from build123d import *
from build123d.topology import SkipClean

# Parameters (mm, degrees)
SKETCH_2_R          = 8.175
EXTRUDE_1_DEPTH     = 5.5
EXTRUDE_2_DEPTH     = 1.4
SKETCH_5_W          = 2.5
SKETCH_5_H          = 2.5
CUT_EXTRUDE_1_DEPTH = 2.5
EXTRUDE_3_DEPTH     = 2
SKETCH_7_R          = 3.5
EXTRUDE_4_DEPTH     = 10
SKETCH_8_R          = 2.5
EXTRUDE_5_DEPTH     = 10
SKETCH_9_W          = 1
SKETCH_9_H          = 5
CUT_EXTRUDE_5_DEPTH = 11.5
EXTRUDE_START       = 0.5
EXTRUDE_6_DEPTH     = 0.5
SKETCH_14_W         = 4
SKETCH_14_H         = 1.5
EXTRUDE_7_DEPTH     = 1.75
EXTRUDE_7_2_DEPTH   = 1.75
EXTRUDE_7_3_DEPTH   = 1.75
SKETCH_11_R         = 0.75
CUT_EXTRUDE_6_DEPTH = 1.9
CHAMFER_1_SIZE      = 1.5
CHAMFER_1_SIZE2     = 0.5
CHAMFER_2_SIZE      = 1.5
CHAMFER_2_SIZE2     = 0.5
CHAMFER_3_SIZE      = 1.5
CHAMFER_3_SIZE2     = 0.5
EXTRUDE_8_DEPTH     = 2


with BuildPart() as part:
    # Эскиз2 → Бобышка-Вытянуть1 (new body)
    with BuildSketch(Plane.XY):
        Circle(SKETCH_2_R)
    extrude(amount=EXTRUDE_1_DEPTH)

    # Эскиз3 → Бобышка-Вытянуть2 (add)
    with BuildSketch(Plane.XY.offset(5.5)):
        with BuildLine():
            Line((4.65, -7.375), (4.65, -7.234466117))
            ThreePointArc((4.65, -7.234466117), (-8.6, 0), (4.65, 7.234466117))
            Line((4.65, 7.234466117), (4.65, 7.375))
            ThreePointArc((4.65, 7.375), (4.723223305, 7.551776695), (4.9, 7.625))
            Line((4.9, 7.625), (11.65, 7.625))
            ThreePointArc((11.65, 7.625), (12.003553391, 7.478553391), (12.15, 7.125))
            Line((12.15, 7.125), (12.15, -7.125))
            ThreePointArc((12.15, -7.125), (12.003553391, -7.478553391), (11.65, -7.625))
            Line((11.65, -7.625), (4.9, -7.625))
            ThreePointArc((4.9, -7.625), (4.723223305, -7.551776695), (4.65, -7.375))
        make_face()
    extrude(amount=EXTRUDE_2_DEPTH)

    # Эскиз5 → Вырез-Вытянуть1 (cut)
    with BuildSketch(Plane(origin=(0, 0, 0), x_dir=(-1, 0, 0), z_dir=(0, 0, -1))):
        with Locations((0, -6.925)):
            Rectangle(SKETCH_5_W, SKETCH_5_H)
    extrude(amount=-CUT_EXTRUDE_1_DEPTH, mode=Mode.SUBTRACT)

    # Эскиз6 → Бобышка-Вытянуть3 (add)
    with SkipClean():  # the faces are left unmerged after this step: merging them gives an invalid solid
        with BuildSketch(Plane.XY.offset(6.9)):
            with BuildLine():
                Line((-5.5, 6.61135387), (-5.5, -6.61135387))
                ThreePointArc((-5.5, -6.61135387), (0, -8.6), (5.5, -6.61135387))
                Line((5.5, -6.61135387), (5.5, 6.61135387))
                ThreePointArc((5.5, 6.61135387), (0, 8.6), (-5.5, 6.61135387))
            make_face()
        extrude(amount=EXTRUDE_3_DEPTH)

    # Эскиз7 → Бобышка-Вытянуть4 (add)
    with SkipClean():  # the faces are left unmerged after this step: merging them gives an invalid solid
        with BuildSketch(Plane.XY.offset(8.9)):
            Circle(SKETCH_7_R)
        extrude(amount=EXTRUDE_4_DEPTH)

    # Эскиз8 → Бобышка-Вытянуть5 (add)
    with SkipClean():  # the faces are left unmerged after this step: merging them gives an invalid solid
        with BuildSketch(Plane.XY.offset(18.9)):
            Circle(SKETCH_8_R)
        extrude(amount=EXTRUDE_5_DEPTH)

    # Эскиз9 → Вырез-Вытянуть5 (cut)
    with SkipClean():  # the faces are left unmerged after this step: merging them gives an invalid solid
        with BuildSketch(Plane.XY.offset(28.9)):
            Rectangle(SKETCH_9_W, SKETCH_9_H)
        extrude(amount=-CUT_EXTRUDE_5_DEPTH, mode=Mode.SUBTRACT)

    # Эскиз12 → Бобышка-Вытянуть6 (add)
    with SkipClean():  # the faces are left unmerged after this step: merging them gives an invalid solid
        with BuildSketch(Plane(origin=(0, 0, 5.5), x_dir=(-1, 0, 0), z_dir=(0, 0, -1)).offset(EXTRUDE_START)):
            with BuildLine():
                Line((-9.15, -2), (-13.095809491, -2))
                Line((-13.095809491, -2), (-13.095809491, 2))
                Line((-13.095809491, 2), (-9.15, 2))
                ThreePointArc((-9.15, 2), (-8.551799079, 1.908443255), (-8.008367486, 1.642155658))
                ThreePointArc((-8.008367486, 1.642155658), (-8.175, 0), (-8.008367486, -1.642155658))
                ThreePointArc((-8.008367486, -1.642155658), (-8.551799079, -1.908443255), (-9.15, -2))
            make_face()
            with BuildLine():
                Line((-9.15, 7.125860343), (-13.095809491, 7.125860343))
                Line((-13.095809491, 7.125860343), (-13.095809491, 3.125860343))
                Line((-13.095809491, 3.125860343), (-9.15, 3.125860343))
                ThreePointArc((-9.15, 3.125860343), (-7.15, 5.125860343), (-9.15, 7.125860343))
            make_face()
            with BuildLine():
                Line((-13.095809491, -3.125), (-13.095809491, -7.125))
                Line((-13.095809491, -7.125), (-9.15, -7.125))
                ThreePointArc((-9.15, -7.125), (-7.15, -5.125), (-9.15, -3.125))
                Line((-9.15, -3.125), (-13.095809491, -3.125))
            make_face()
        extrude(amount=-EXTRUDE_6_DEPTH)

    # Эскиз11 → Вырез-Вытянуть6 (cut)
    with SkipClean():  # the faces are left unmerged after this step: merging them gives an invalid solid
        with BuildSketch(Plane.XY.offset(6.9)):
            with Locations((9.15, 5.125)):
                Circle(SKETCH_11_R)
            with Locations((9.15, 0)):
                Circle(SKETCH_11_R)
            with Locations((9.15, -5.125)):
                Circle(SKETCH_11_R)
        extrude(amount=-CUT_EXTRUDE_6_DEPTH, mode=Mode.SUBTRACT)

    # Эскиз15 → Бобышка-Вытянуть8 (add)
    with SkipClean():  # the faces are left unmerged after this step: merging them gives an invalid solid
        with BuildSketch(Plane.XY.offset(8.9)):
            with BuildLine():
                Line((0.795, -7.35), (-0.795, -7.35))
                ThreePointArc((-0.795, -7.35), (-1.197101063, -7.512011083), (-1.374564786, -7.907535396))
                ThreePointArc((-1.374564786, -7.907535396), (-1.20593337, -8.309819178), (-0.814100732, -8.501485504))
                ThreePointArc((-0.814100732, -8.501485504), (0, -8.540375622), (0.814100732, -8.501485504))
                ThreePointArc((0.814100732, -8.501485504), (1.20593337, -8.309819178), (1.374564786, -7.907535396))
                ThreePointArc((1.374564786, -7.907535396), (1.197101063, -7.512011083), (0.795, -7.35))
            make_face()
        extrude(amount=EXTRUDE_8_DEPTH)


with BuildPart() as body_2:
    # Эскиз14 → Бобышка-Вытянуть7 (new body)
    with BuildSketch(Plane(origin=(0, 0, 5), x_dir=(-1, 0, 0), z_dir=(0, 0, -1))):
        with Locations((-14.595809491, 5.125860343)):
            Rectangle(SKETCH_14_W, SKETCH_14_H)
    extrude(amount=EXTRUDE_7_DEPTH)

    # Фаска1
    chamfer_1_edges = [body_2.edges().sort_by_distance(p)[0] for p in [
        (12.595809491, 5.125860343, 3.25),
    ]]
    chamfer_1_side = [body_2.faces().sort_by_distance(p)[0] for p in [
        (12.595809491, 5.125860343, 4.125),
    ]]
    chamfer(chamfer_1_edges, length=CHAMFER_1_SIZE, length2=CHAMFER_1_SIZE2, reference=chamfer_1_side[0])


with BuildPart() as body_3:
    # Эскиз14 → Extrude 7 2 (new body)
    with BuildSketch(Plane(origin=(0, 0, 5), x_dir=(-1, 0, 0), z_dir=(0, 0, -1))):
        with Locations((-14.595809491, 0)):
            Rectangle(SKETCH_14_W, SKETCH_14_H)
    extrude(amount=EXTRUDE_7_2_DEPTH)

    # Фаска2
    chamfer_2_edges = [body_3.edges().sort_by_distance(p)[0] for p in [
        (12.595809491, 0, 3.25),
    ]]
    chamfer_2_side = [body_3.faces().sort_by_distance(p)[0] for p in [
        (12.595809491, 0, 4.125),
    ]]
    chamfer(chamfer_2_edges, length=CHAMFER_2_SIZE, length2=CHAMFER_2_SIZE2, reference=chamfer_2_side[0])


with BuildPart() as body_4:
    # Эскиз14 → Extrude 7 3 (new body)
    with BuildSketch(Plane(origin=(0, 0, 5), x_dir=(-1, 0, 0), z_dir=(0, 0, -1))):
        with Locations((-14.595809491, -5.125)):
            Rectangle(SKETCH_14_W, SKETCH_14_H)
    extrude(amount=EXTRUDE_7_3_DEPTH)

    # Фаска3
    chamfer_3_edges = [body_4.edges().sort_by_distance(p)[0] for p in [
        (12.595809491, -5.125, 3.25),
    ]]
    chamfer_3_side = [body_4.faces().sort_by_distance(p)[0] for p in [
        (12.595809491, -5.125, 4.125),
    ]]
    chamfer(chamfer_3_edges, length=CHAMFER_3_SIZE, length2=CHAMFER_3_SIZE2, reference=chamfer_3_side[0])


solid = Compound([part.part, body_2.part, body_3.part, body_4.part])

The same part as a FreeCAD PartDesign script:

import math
import FreeCAD as App
import Part
import Sketcher


def edges_at(feature, points):
    """Names of the edges that pass closest to the given points."""
    edges = feature.Shape.Edges
    near = lambda p: min(range(len(edges)), key=lambda i: edges[i].distToShape(Part.Vertex(*p))[0])
    return sorted({f"Edge{near(p) + 1}" for p in points})

doc = App.newDocument("Part")
params = doc.addObject("Spreadsheet::Sheet", "Params")
for row, (alias, value) in enumerate([
    ("sketch1_diameter", "16.35 mm"),
    ("pad1_length", "5.5 mm"),
    ("sketch2_radius", "0.5 mm"),
    ("sketch2_radius2", "8.6 mm"),
    ("sketch2_radius3", "0.25 mm"),
    ("pad2_length", "1.4 mm"),
    ("sketch3_width", "2.5 mm"),
    ("pocket1_length", "2.5 mm"),
    ("sketch4_radius", "8.6 mm"),
    ("pad3_length", "2 mm"),
    ("sketch5_diameter", "7 mm"),
    ("pad4_length", "10 mm"),
    ("sketch6_diameter", "5 mm"),
    ("pad5_length", "10 mm"),
    ("sketch7_width", "1 mm"),
    ("sketch7_height", "5 mm"),
    ("pocket2_length", "11.5 mm"),
    ("sketch8_radius", "2 mm"),
    ("pad6_length", "0.5 mm"),
    ("sketch9_diameter", "1.5 mm"),
    ("pocket3_length", "1.9 mm"),
    ("sketch10_radius", "0.58 mm"),
    ("sketch10_radius2", "0.62 mm"),
    ("sketch10_width", "1.59 mm"),
    ("pad7_length", "2 mm"),
    ("sketch11_width", "4 mm"),
    ("sketch11_height", "1.5 mm"),
    ("pad8_length", "1.75 mm"),
    ("chamfer_size", "1.5 mm"),
    ("chamfer_size2", "0.5 mm"),
    ("sketch12_width", "4 mm"),
    ("sketch12_height", "1.5 mm"),
    ("pad9_length", "1.75 mm"),
    ("chamfer2_size", "1.5 mm"),
    ("chamfer2_size2", "0.5 mm"),
    ("sketch13_width", "4 mm"),
    ("sketch13_height", "1.5 mm"),
    ("pad10_length", "1.75 mm"),
    ("chamfer3_size", "1.5 mm"),
    ("chamfer3_size2", "0.5 mm"),
], start=1):
    params.set(f"A{row}", alias)
    params.set(f"B{row}", "=" + value)
    params.setAlias(f"B{row}", alias)

body = doc.addObject("PartDesign::Body", "Body")

sketch1 = body.newObject("Sketcher::SketchObject", "Sketch")
sketch1.AttachmentSupport = (doc.getObject("XY_Plane"), [""])
sketch1.MapMode = "FlatFace"
sketch1.addGeometry(Part.Circle(App.Vector(0, 0, 0), App.Vector(0, 0, 1), 8), False)
sketch1.addConstraint([
    Sketcher.Constraint("Coincident", 0, 3, -1, 1),
    Sketcher.Constraint("Diameter", 0, 16.35),
])
sketch1.setExpression("Constraints[1]", "Params.sketch1_diameter")
pad1 = body.newObject("PartDesign::Pad", "Pad")
pad1.Profile = sketch1
pad1.setExpression("Length", "Params.pad1_length")

sketch2 = body.newObject("Sketcher::SketchObject", "Sketch001")
sketch2.AttachmentSupport = (doc.getObject("XY_Plane"), [""])
sketch2.MapMode = "FlatFace"
sketch2.AttachmentOffset = App.Placement(App.Vector(0, 0, 5.5), App.Rotation())
sketch2.addGeometry([
    Part.LineSegment(App.Vector(4.65, -7.23, 0), App.Vector(4.65, -7.38, 0)),
    Part.ArcOfCircle(Part.Circle(App.Vector(4.9, -7.37, 0), App.Vector(0, 0, 1), 0.25), math.radians(-180), math.radians(-90)),
    Part.LineSegment(App.Vector(4.9, -7.62, 0), App.Vector(11.65, -7.62, 0)),
    Part.ArcOfCircle(Part.Circle(App.Vector(11.65, -7.13, 0), App.Vector(0, 0, 1), 0.5), math.radians(-90), math.radians(0)),
    Part.LineSegment(App.Vector(12.15, -7.12, 0), App.Vector(12.15, 7.12, 0)),
    Part.ArcOfCircle(Part.Circle(App.Vector(11.65, 7.13, 0), App.Vector(0, 0, 1), 0.5), math.radians(0), math.radians(90)),
    Part.LineSegment(App.Vector(11.65, 7.62, 0), App.Vector(4.9, 7.62, 0)),
    Part.ArcOfCircle(Part.Circle(App.Vector(4.9, 7.37, 0), App.Vector(0, 0, 1), 0.25), math.radians(90), math.radians(180)),
    Part.LineSegment(App.Vector(4.65, 7.38, 0), App.Vector(4.65, 7.23, 0)),
    Part.ArcOfCircle(Part.Circle(App.Vector(0, 0, 0), App.Vector(0, 0, 1), 8.6), math.radians(57), math.radians(303)),
], False)
sketch2.addConstraint([
    Sketcher.Constraint("Tangent", 0, 2, 1, 1),
    Sketcher.Constraint("Tangent", 1, 2, 2, 1),
    Sketcher.Constraint("Tangent", 2, 2, 3, 1),
    Sketcher.Constraint("Tangent", 3, 2, 4, 1),
    Sketcher.Constraint("Tangent", 4, 2, 5, 1),
    Sketcher.Constraint("Tangent", 5, 2, 6, 1),
    Sketcher.Constraint("Tangent", 6, 2, 7, 1),
    Sketcher.Constraint("Tangent", 7, 2, 8, 1),
    Sketcher.Constraint("Coincident", 8, 2, 9, 1),
    Sketcher.Constraint("Coincident", 9, 2, 0, 1),
    Sketcher.Constraint("Vertical", 0),
    Sketcher.Constraint("Horizontal", 2),
    Sketcher.Constraint("Vertical", 4),
    Sketcher.Constraint("Horizontal", 6),
    Sketcher.Constraint("Vertical", 8),
    Sketcher.Constraint("Coincident", 9, 3, -1, 1),
    Sketcher.Constraint("Equal", 3, 5),
    Sketcher.Constraint("Equal", 1, 7),
    Sketcher.Constraint("Symmetric", 1, 3, 7, 3, -1),
    Sketcher.Constraint("Radius", 3, 0.5),
    Sketcher.Constraint("Radius", 9, 8.6),
    Sketcher.Constraint("Radius", 1, 0.25),
    Sketcher.Constraint("DistanceX", 0, 2, 3, 3, 7.0),
    Sketcher.Constraint("DistanceY", 1, 2, 7, 3, 15.0),
    Sketcher.Constraint("DistanceX", -1, 1, 1, 3, 4.9),
])
sketch2.setExpression("Constraints[19]", "Params.sketch2_radius")
sketch2.setExpression("Constraints[20]", "Params.sketch2_radius2")
sketch2.setExpression("Constraints[21]", "Params.sketch2_radius3")
pad2 = body.newObject("PartDesign::Pad", "Pad001")
pad2.Profile = sketch2
pad2.setExpression("Length", "Params.pad2_length")

sketch3 = body.newObject("Sketcher::SketchObject", "Sketch002")
sketch3.AttachmentSupport = (doc.getObject("XY_Plane"), [""])
sketch3.MapMode = "FlatFace"
sketch3.addGeometry([
    Part.LineSegment(App.Vector(1.2, -5.7, 0), App.Vector(1.2, -8.2, 0)),
    Part.LineSegment(App.Vector(1.2, -8.2, 0), App.Vector(-1.2, -8.2, 0)),
    Part.LineSegment(App.Vector(-1.2, -8.2, 0), App.Vector(-1.2, -5.7, 0)),
    Part.LineSegment(App.Vector(-1.2, -5.7, 0), App.Vector(1.2, -5.7, 0)),
], False)
sketch3.addConstraint([
    Sketcher.Constraint("Coincident", 0, 2, 1, 1),
    Sketcher.Constraint("Coincident", 1, 2, 2, 1),
    Sketcher.Constraint("Coincident", 2, 2, 3, 1),
    Sketcher.Constraint("Coincident", 3, 2, 0, 1),
    Sketcher.Constraint("Vertical", 0),
    Sketcher.Constraint("Horizontal", 1),
    Sketcher.Constraint("Vertical", 2),
    Sketcher.Constraint("Horizontal", 3),
    Sketcher.Constraint("Equal", 3, 0),
    Sketcher.Constraint("DistanceX", 1, 2, 1, 1, 2.5),
    Sketcher.Constraint("DistanceX", -1, 1, 0, 2, 1.25),
    Sketcher.Constraint("DistanceY", 0, 2, -1, 1, 8.175),
])
sketch3.setExpression("Constraints[9]", "Params.sketch3_width")
pocket1 = body.newObject("PartDesign::Pocket", "Pocket")
pocket1.Profile = sketch3
pocket1.setExpression("Length", "Params.pocket1_length")
pocket1.Reversed = True

sketch4 = body.newObject("Sketcher::SketchObject", "Sketch003")
sketch4.AttachmentSupport = (doc.getObject("XY_Plane"), [""])
sketch4.MapMode = "FlatFace"
sketch4.AttachmentOffset = App.Placement(App.Vector(0, 0, 6.9), App.Rotation())
sketch4.addGeometry([
    Part.LineSegment(App.Vector(-6, 7, 0), App.Vector(-6, -7, 0)),
    Part.ArcOfCircle(Part.Circle(App.Vector(0, 0, 0), App.Vector(0, 0, 1), 9), math.radians(-130), math.radians(-50)),
    Part.LineSegment(App.Vector(6, -7, 0), App.Vector(6, 7, 0)),
    Part.ArcOfCircle(Part.Circle(App.Vector(0, 0, 0), App.Vector(0, 0, 1), 9), math.radians(50), math.radians(130)),
], False)
sketch4.addConstraint([
    Sketcher.Constraint("Coincident", 0, 2, 1, 1),
    Sketcher.Constraint("Coincident", 1, 2, 2, 1),
    Sketcher.Constraint("Coincident", 2, 2, 3, 1),
    Sketcher.Constraint("Coincident", 3, 2, 0, 1),
    Sketcher.Constraint("Vertical", 0),
    Sketcher.Constraint("Vertical", 2),
    Sketcher.Constraint("Coincident", 1, 3, -1, 1),
    Sketcher.Constraint("Coincident", 3, 3, -1, 1),
    Sketcher.Constraint("Equal", 1, 3),
    Sketcher.Constraint("Horizontal", 0, 2, 1, 2),
    Sketcher.Constraint("Radius", 1, 8.6),
    Sketcher.Constraint("DistanceX", 0, 2, 1, 2, 11.0),
])
sketch4.setExpression("Constraints[10]", "Params.sketch4_radius")
pad3 = body.newObject("PartDesign::Pad", "Pad002")
pad3.Profile = sketch4
pad3.setExpression("Length", "Params.pad3_length")

sketch5 = body.newObject("Sketcher::SketchObject", "Sketch004")
sketch5.AttachmentSupport = (doc.getObject("XY_Plane"), [""])
sketch5.MapMode = "FlatFace"
sketch5.AttachmentOffset = App.Placement(App.Vector(0, 0, 8.9), App.Rotation())
sketch5.addGeometry(Part.Circle(App.Vector(0, 0, 0), App.Vector(0, 0, 1), 3.5), False)
sketch5.addConstraint([
    Sketcher.Constraint("Coincident", 0, 3, -1, 1),
    Sketcher.Constraint("Diameter", 0, 7.0),
])
sketch5.setExpression("Constraints[1]", "Params.sketch5_diameter")
pad4 = body.newObject("PartDesign::Pad", "Pad003")
pad4.Profile = sketch5
pad4.setExpression("Length", "Params.pad4_length")

sketch6 = body.newObject("Sketcher::SketchObject", "Sketch005")
sketch6.AttachmentSupport = (doc.getObject("XY_Plane"), [""])
sketch6.MapMode = "FlatFace"
sketch6.AttachmentOffset = App.Placement(App.Vector(0, 0, 18.9), App.Rotation())
sketch6.addGeometry(Part.Circle(App.Vector(0, 0, 0), App.Vector(0, 0, 1), 2.5), False)
sketch6.addConstraint([
    Sketcher.Constraint("Coincident", 0, 3, -1, 1),
    Sketcher.Constraint("Diameter", 0, 5.0),
])
sketch6.setExpression("Constraints[1]", "Params.sketch6_diameter")
pad5 = body.newObject("PartDesign::Pad", "Pad004")
pad5.Profile = sketch6
pad5.setExpression("Length", "Params.pad5_length")

sketch7 = body.newObject("Sketcher::SketchObject", "Sketch006")
sketch7.AttachmentSupport = (doc.getObject("XY_Plane"), [""])
sketch7.MapMode = "FlatFace"
sketch7.AttachmentOffset = App.Placement(App.Vector(0, 0, 28.9), App.Rotation())
sketch7.addGeometry([
    Part.LineSegment(App.Vector(-0.5, 2.5, 0), App.Vector(-0.5, -2.5, 0)),
    Part.LineSegment(App.Vector(-0.5, -2.5, 0), App.Vector(0.5, -2.5, 0)),
    Part.LineSegment(App.Vector(0.5, -2.5, 0), App.Vector(0.5, 2.5, 0)),
    Part.LineSegment(App.Vector(0.5, 2.5, 0), App.Vector(-0.5, 2.5, 0)),
], False)
sketch7.addConstraint([
    Sketcher.Constraint("Coincident", 0, 2, 1, 1),
    Sketcher.Constraint("Coincident", 1, 2, 2, 1),
    Sketcher.Constraint("Coincident", 2, 2, 3, 1),
    Sketcher.Constraint("Coincident", 3, 2, 0, 1),
    Sketcher.Constraint("Vertical", 0),
    Sketcher.Constraint("Horizontal", 1),
    Sketcher.Constraint("Vertical", 2),
    Sketcher.Constraint("Horizontal", 3),
    Sketcher.Constraint("Symmetric", 0, 2, 2, 2, -1, 1),
    Sketcher.Constraint("DistanceX", 1, 1, 1, 2, 1.0),
    Sketcher.Constraint("DistanceY", 0, 2, 0, 1, 5.0),
])
sketch7.setExpression("Constraints[9]", "Params.sketch7_width")
sketch7.setExpression("Constraints[10]", "Params.sketch7_height")
pocket2 = body.newObject("PartDesign::Pocket", "Pocket001")
pocket2.Profile = sketch7
pocket2.setExpression("Length", "Params.pocket2_length")

sketch8 = body.newObject("Sketcher::SketchObject", "Sketch007")
sketch8.AttachmentSupport = (doc.getObject("XY_Plane"), [""])
sketch8.MapMode = "FlatFace"
sketch8.AttachmentOffset = App.Placement(App.Vector(0, 0, 5), App.Rotation())
sketch8.addGeometry([
    Part.LineSegment(App.Vector(13.1, -2, 0), App.Vector(9.2, -2, 0)),
    Part.ArcOfCircle(Part.Circle(App.Vector(9.2, 0, 0), App.Vector(0, 0, 1), 2), math.radians(-125), math.radians(-90)),
    Part.ArcOfCircle(Part.Circle(App.Vector(0, 0, 0), App.Vector(0, 0, 1), 8.2), math.radians(-12), math.radians(12)),
    Part.ArcOfCircle(Part.Circle(App.Vector(9.2, 0, 0), App.Vector(0, 0, 1), 2), math.radians(90), math.radians(125)),
    Part.LineSegment(App.Vector(9.2, 2, 0), App.Vector(13.1, 2, 0)),
    Part.LineSegment(App.Vector(13.1, 2, 0), App.Vector(13.1, -2, 0)),
    Part.LineSegment(App.Vector(9.2, 7.1, 0), App.Vector(13.1, 7.1, 0)),
    Part.LineSegment(App.Vector(13.1, 7.1, 0), App.Vector(13.1, 3.1, 0)),
    Part.LineSegment(App.Vector(13.1, 3.1, 0), App.Vector(9.2, 3.1, 0)),
    Part.ArcOfCircle(Part.Circle(App.Vector(9.2, 5.1, 0), App.Vector(0, 0, 1), 2), math.radians(90), math.radians(270)),
    Part.LineSegment(App.Vector(13.1, -3.1, 0), App.Vector(13.1, -7.1, 0)),
    Part.LineSegment(App.Vector(13.1, -7.1, 0), App.Vector(9.2, -7.1, 0)),
    Part.ArcOfCircle(Part.Circle(App.Vector(9.2, -5.1, 0), App.Vector(0, 0, 1), 2), math.radians(90), math.radians(270)),
    Part.LineSegment(App.Vector(9.2, -3.1, 0), App.Vector(13.1, -3.1, 0)),
], False)
sketch8.addConstraint([
    Sketcher.Constraint("Tangent", 0, 2, 1, 2),
    Sketcher.Constraint("Coincident", 1, 1, 2, 1),
    Sketcher.Constraint("Coincident", 2, 2, 3, 2),
    Sketcher.Constraint("Tangent", 3, 1, 4, 1),
    Sketcher.Constraint("Coincident", 4, 2, 5, 1),
    Sketcher.Constraint("Coincident", 5, 2, 0, 1),
    Sketcher.Constraint("Coincident", 6, 2, 7, 1),
    Sketcher.Constraint("Coincident", 7, 2, 8, 1),
    Sketcher.Constraint("Tangent", 8, 2, 9, 2),
    Sketcher.Constraint("Tangent", 9, 1, 6, 1),
    Sketcher.Constraint("Coincident", 10, 2, 11, 1),
    Sketcher.Constraint("Tangent", 11, 2, 12, 2),
    Sketcher.Constraint("Tangent", 12, 1, 13, 1),
    Sketcher.Constraint("Coincident", 13, 2, 10, 1),
    Sketcher.Constraint("Horizontal", 0),
    Sketcher.Constraint("Horizontal", 4),
    Sketcher.Constraint("Vertical", 5),
    Sketcher.Constraint("Horizontal", 6),
    Sketcher.Constraint("Vertical", 7),
    Sketcher.Constraint("Horizontal", 8),
    Sketcher.Constraint("Vertical", 10),
    Sketcher.Constraint("Horizontal", 11),
    Sketcher.Constraint("Horizontal", 13),
    Sketcher.Constraint("Coincident", 2, 3, -1, 1),
    Sketcher.Constraint("Coincident", 3, 3, 1, 3),
    Sketcher.Constraint("Equal", 1, 3),
    Sketcher.Constraint("Equal", 3, 9),
    Sketcher.Constraint("Equal", 9, 12),
    Sketcher.Constraint("PointOnObject", 1, 3, -1),
    Sketcher.Constraint("Vertical", 3, 3, 9, 3),
    Sketcher.Constraint("Vertical", 9, 3, 12, 3),
    Sketcher.Constraint("Vertical", 5, 2, 6, 2),
    Sketcher.Constraint("Vertical", 7, 2, 10, 2),
    Sketcher.Constraint("Radius", 1, 2.0),
    Sketcher.Constraint("Radius", 2, 8.175),
    Sketcher.Constraint("DistanceX", -1, 1, 1, 3, 9.15),
    Sketcher.Constraint("DistanceY", 12, 3, -1, 1, 5.125),
    Sketcher.Constraint("DistanceX", 0, 2, 0, 1, 3.945809),
    Sketcher.Constraint("DistanceY", -1, 1, 9, 3, 5.12586),
])
sketch8.setExpression("Constraints[33]", "Params.sketch8_radius")
pad6 = body.newObject("PartDesign::Pad", "Pad005")
pad6.Profile = sketch8
pad6.setExpression("Length", "Params.pad6_length")

sketch9 = body.newObject("Sketcher::SketchObject", "Sketch008")
sketch9.AttachmentSupport = (doc.getObject("XY_Plane"), [""])
sketch9.MapMode = "FlatFace"
sketch9.AttachmentOffset = App.Placement(App.Vector(0, 0, 6.9), App.Rotation())
sketch9.addGeometry([
    Part.Circle(App.Vector(9.2, 5.1, 0), App.Vector(0, 0, 1), 0.8),
    Part.Circle(App.Vector(9.2, 0, 0), App.Vector(0, 0, 1), 0.8),
    Part.Circle(App.Vector(9.2, -5.1, 0), App.Vector(0, 0, 1), 0.8),
], False)
sketch9.addConstraint([
    Sketcher.Constraint("Equal", 0, 1),
    Sketcher.Constraint("Equal", 1, 2),
    Sketcher.Constraint("Symmetric", 0, 3, 2, 3, -1),
    Sketcher.Constraint("PointOnObject", 1, 3, -1),
    Sketcher.Constraint("Vertical", 0, 3, 1, 3),
    Sketcher.Constraint("Diameter", 0, 1.5),
    Sketcher.Constraint("DistanceX", -1, 1, 0, 3, 9.15),
    Sketcher.Constraint("DistanceY", 2, 3, 0, 3, 10.25),
])
sketch9.setExpression("Constraints[5]", "Params.sketch9_diameter")
pocket3 = body.newObject("PartDesign::Pocket", "Pocket002")
pocket3.Profile = sketch9
pocket3.setExpression("Length", "Params.pocket3_length")

sketch10 = body.newObject("Sketcher::SketchObject", "Sketch009")
sketch10.AttachmentSupport = (doc.getObject("XY_Plane"), [""])
sketch10.MapMode = "FlatFace"
sketch10.AttachmentOffset = App.Placement(App.Vector(0, 0, 8.9), App.Rotation())
sketch10.addGeometry([
    Part.LineSegment(App.Vector(0.8, -7.3, 0), App.Vector(-0.8, -7.3, 0)),
    Part.ArcOfCircle(Part.Circle(App.Vector(-0.8, -7.9, 0), App.Vector(0, 0, 1), 0.6), math.radians(90), math.radians(178)),
    Part.ArcOfCircle(Part.Circle(App.Vector(-0.8, -7.9, 0), App.Vector(0, 0, 1), 0.6), math.radians(-178), math.radians(-95)),
    Part.ArcOfCircle(Part.Circle(App.Vector(0, 0, 0), App.Vector(0, 0, 1), 8.5), math.radians(-95.47), math.radians(-84.53)),
    Part.ArcOfCircle(Part.Circle(App.Vector(0.8, -7.9, 0), App.Vector(0, 0, 1), 0.6), math.radians(-85), math.radians(-2)),
    Part.ArcOfCircle(Part.Circle(App.Vector(0.8, -7.9, 0), App.Vector(0, 0, 1), 0.6), math.radians(2), math.radians(90)),
], False)
sketch10.addConstraint([
    Sketcher.Constraint("Tangent", 0, 2, 1, 1),
    Sketcher.Constraint("Coincident", 1, 2, 2, 1),
    Sketcher.Constraint("Tangent", 2, 2, 3, 1),
    Sketcher.Constraint("Tangent", 3, 2, 4, 1),
    Sketcher.Constraint("Coincident", 4, 2, 5, 1),
    Sketcher.Constraint("Tangent", 5, 2, 0, 1),
    Sketcher.Constraint("Horizontal", 0),
    Sketcher.Constraint("Coincident", 3, 3, -1, 1),
    Sketcher.Constraint("Equal", 2, 4),
    Sketcher.Constraint("Equal", 1, 5),
    Sketcher.Constraint("Symmetric", 1, 2, 4, 2, -2),
    Sketcher.Constraint("Radius", 1, 0.58),
    Sketcher.Constraint("Radius", 2, 0.62),
    Sketcher.Constraint("DistanceX", 0, 2, 0, 1, 1.59),
    Sketcher.Constraint("DistanceY", 1, 3, -1, 1, 7.93),
    Sketcher.Constraint("DistanceX", 1, 3, 2, 3, 0.04),
    Sketcher.Constraint("Radius", 3, 8.540376),
])
sketch10.setExpression("Constraints[11]", "Params.sketch10_radius")
sketch10.setExpression("Constraints[12]", "Params.sketch10_radius2")
sketch10.setExpression("Constraints[13]", "Params.sketch10_width")
pad7 = body.newObject("PartDesign::Pad", "Pad006")
pad7.Profile = sketch10
pad7.setExpression("Length", "Params.pad7_length")
body2 = doc.addObject("PartDesign::Body", "Body001")

sketch11 = body2.newObject("Sketcher::SketchObject", "Sketch010")
sketch11.AttachmentSupport = (doc.getObject("XY_Plane001"), [""])
sketch11.MapMode = "FlatFace"
sketch11.AttachmentOffset = App.Placement(App.Vector(0, 0, 5), App.Rotation())
sketch11.addGeometry([
    Part.LineSegment(App.Vector(16.6, 5.9, 0), App.Vector(16.6, 4.4, 0)),
    Part.LineSegment(App.Vector(16.6, 4.4, 0), App.Vector(12.6, 4.4, 0)),
    Part.LineSegment(App.Vector(12.6, 4.4, 0), App.Vector(12.6, 5.9, 0)),
    Part.LineSegment(App.Vector(12.6, 5.9, 0), App.Vector(16.6, 5.9, 0)),
], False)
sketch11.addConstraint([
    Sketcher.Constraint("Coincident", 0, 2, 1, 1),
    Sketcher.Constraint("Coincident", 1, 2, 2, 1),
    Sketcher.Constraint("Coincident", 2, 2, 3, 1),
    Sketcher.Constraint("Coincident", 3, 2, 0, 1),
    Sketcher.Constraint("Vertical", 0),
    Sketcher.Constraint("Horizontal", 1),
    Sketcher.Constraint("Vertical", 2),
    Sketcher.Constraint("Horizontal", 3),
    Sketcher.Constraint("DistanceX", 1, 2, 1, 1, 4.0),
    Sketcher.Constraint("DistanceY", 0, 2, 0, 1, 1.5),
    Sketcher.Constraint("DistanceX", -1, 1, 0, 2, 16.595809),
    Sketcher.Constraint("DistanceY", -1, 1, 0, 2, 4.37586),
])
sketch11.setExpression("Constraints[8]", "Params.sketch11_width")
sketch11.setExpression("Constraints[9]", "Params.sketch11_height")
pad8 = body2.newObject("PartDesign::Pad", "Pad007")
pad8.Profile = sketch11
pad8.setExpression("Length", "Params.pad8_length")
pad8.Reversed = True
doc.recompute()

chamfer = body2.newObject("PartDesign::Chamfer", "Chamfer")
chamfer.Base = (pad8, edges_at(pad8, [(12.596, 5.126, 3.25)]))
chamfer.ChamferType = "Two distances"
chamfer.setExpression("Size", "Params.chamfer_size")
chamfer.setExpression("Size2", "Params.chamfer_size2")
body3 = doc.addObject("PartDesign::Body", "Body002")

sketch12 = body3.newObject("Sketcher::SketchObject", "Sketch011")
sketch12.AttachmentSupport = (doc.getObject("XY_Plane002"), [""])
sketch12.MapMode = "FlatFace"
sketch12.AttachmentOffset = App.Placement(App.Vector(0, 0, 5), App.Rotation())
sketch12.addGeometry([
    Part.LineSegment(App.Vector(16.6, 0.8, 0), App.Vector(16.6, -0.8, 0)),
    Part.LineSegment(App.Vector(16.6, -0.8, 0), App.Vector(12.6, -0.8, 0)),
    Part.LineSegment(App.Vector(12.6, -0.8, 0), App.Vector(12.6, 0.8, 0)),
    Part.LineSegment(App.Vector(12.6, 0.8, 0), App.Vector(16.6, 0.8, 0)),
], False)
sketch12.addConstraint([
    Sketcher.Constraint("Coincident", 0, 2, 1, 1),
    Sketcher.Constraint("Coincident", 1, 2, 2, 1),
    Sketcher.Constraint("Coincident", 2, 2, 3, 1),
    Sketcher.Constraint("Coincident", 3, 2, 0, 1),
    Sketcher.Constraint("Vertical", 0),
    Sketcher.Constraint("Horizontal", 1),
    Sketcher.Constraint("Vertical", 2),
    Sketcher.Constraint("Horizontal", 3),
    Sketcher.Constraint("DistanceX", 1, 2, 1, 1, 4.0),
    Sketcher.Constraint("DistanceY", 0, 2, 0, 1, 1.5),
    Sketcher.Constraint("DistanceY", 0, 2, -1, 1, 0.75),
    Sketcher.Constraint("DistanceX", -1, 1, 0, 2, 16.595809),
])
sketch12.setExpression("Constraints[8]", "Params.sketch12_width")
sketch12.setExpression("Constraints[9]", "Params.sketch12_height")
pad9 = body3.newObject("PartDesign::Pad", "Pad008")
pad9.Profile = sketch12
pad9.setExpression("Length", "Params.pad9_length")
pad9.Reversed = True
doc.recompute()

chamfer2 = body3.newObject("PartDesign::Chamfer", "Chamfer001")
chamfer2.Base = (pad9, edges_at(pad9, [(12.596, 0, 3.25)]))
chamfer2.ChamferType = "Two distances"
chamfer2.setExpression("Size", "Params.chamfer2_size")
chamfer2.setExpression("Size2", "Params.chamfer2_size2")
body4 = doc.addObject("PartDesign::Body", "Body003")

sketch13 = body4.newObject("Sketcher::SketchObject", "Sketch012")
sketch13.AttachmentSupport = (doc.getObject("XY_Plane003"), [""])
sketch13.MapMode = "FlatFace"
sketch13.AttachmentOffset = App.Placement(App.Vector(0, 0, 5), App.Rotation())
sketch13.addGeometry([
    Part.LineSegment(App.Vector(16.6, -4.4, 0), App.Vector(16.6, -5.9, 0)),
    Part.LineSegment(App.Vector(16.6, -5.9, 0), App.Vector(12.6, -5.9, 0)),
    Part.LineSegment(App.Vector(12.6, -5.9, 0), App.Vector(12.6, -4.4, 0)),
    Part.LineSegment(App.Vector(12.6, -4.4, 0), App.Vector(16.6, -4.4, 0)),
], False)
sketch13.addConstraint([
    Sketcher.Constraint("Coincident", 0, 2, 1, 1),
    Sketcher.Constraint("Coincident", 1, 2, 2, 1),
    Sketcher.Constraint("Coincident", 2, 2, 3, 1),
    Sketcher.Constraint("Coincident", 3, 2, 0, 1),
    Sketcher.Constraint("Vertical", 0),
    Sketcher.Constraint("Horizontal", 1),
    Sketcher.Constraint("Vertical", 2),
    Sketcher.Constraint("Horizontal", 3),
    Sketcher.Constraint("DistanceX", 1, 2, 1, 1, 4.0),
    Sketcher.Constraint("DistanceY", 0, 2, 0, 1, 1.5),
    Sketcher.Constraint("DistanceY", 0, 2, -1, 1, 5.875),
    Sketcher.Constraint("DistanceX", -1, 1, 0, 2, 16.595809),
])
sketch13.setExpression("Constraints[8]", "Params.sketch13_width")
sketch13.setExpression("Constraints[9]", "Params.sketch13_height")
pad10 = body4.newObject("PartDesign::Pad", "Pad009")
pad10.Profile = sketch13
pad10.setExpression("Length", "Params.pad10_length")
pad10.Reversed = True
doc.recompute()

chamfer3 = body4.newObject("PartDesign::Chamfer", "Chamfer002")
chamfer3.Base = (pad10, edges_at(pad10, [(12.596, -5.125, 3.25)]))
chamfer3.ChamferType = "Two distances"
chamfer3.setExpression("Size", "Params.chamfer3_size")
chamfer3.setExpression("Size2", "Params.chamfer3_size2")

doc.recompute()
